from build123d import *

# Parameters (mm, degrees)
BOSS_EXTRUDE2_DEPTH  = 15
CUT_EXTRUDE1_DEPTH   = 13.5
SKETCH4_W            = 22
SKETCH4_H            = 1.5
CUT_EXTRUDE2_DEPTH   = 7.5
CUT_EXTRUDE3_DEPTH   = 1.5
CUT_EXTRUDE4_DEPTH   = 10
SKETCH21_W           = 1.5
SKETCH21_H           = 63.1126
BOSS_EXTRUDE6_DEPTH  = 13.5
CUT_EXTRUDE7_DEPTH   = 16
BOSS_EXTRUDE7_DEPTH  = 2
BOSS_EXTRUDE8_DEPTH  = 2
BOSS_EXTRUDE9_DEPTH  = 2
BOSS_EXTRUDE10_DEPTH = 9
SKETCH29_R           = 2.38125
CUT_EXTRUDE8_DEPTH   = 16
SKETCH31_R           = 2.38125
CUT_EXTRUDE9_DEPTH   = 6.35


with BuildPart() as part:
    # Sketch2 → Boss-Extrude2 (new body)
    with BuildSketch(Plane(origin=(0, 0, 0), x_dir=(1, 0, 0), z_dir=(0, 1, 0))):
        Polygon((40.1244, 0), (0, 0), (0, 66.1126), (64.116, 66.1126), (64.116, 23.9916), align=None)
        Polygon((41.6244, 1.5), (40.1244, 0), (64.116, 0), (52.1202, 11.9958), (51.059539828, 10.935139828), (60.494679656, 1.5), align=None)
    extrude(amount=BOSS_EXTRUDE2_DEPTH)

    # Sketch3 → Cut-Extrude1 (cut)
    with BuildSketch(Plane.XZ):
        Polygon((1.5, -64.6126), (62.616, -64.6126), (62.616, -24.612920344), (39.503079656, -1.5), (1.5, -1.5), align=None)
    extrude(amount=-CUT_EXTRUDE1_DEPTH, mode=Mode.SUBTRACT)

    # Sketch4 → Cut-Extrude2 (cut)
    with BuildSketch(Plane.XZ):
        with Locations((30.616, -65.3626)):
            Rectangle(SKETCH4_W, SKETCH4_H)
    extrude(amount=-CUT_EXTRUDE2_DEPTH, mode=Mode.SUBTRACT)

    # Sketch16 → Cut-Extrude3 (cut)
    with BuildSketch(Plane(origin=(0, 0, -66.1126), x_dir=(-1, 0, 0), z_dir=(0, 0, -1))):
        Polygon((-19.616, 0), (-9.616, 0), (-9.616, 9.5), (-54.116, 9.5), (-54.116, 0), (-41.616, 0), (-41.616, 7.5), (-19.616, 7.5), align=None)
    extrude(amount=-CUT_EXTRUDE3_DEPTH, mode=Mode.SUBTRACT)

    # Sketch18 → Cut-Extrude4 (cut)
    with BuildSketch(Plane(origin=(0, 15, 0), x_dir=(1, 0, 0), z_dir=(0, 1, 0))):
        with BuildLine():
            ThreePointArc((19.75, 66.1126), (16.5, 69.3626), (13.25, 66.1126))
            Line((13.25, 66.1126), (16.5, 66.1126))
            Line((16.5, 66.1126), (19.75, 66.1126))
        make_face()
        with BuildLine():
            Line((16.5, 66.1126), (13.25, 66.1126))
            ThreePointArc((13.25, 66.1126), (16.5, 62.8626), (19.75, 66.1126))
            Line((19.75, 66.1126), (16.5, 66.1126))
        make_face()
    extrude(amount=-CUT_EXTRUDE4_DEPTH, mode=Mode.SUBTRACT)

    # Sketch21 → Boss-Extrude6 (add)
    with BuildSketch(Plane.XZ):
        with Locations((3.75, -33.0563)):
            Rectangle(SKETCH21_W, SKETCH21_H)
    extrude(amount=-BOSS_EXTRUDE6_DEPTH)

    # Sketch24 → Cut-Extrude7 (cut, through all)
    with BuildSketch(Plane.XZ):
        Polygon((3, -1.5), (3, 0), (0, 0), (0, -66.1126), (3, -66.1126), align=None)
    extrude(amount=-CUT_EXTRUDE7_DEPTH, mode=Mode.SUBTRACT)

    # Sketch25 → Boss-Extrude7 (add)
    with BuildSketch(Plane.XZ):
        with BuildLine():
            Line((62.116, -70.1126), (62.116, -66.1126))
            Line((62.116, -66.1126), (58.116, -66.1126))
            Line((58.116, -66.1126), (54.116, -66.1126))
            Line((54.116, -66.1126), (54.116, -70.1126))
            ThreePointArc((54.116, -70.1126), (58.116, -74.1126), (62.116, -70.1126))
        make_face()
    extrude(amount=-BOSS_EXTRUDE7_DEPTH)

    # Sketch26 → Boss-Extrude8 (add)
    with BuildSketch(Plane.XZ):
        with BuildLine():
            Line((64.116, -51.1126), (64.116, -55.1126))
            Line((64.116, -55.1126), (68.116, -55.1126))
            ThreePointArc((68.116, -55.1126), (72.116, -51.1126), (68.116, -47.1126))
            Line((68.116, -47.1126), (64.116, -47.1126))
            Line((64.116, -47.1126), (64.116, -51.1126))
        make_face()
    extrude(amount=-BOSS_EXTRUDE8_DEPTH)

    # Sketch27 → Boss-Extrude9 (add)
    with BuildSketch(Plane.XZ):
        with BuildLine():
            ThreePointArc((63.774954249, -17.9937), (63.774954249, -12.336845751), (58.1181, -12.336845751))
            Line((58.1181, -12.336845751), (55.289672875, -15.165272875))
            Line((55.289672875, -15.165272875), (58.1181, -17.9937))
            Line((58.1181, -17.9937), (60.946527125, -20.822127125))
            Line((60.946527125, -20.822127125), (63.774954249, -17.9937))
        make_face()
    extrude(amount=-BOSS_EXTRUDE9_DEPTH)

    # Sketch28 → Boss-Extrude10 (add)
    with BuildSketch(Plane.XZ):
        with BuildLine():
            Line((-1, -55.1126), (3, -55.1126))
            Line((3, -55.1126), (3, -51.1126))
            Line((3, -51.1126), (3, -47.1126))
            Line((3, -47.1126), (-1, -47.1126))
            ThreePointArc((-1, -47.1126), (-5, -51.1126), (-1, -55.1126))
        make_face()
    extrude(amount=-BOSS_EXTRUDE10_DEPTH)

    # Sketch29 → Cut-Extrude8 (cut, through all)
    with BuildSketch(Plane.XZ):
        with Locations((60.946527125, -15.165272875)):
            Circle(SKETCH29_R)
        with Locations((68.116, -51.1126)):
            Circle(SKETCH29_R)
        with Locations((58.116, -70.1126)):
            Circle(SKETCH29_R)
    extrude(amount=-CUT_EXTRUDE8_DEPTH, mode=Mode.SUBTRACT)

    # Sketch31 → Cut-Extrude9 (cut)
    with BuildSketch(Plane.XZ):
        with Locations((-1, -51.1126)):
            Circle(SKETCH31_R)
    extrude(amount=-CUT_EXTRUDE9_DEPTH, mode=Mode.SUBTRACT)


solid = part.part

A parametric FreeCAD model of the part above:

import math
import FreeCAD as App
import Part
import Sketcher
Q = App.Units.Quantity

doc = App.newDocument("Part")
params = doc.addObject("Spreadsheet::Sheet", "Params")
for row, (alias, value) in enumerate([
    ("pad1_length", "15 mm"),
    ("pocket1_length", "13.5 mm"),
    ("sketch3_width", "22 mm"),
    ("sketch3_height", "1.5 mm"),
    ("pocket2_length", "7.5 mm"),
    ("sketch4_width", "10 mm"),
    ("sketch4_width2", "22 mm"),
    ("sketch4_width3", "44.5 mm"),
    ("sketch4_height", "9.5 mm"),
    ("sketch4_height2", "7.5 mm"),
    ("pocket3_length", "1.5 mm"),
    ("sketch5_diameter", "6.5 mm"),
    ("pocket4_length", "10 mm"),
    ("sketch6_width", "1.5 mm"),
    ("pad2_length", "13.5 mm"),
    ("sketch7_width", "3 mm"),
    ("sketch8_radius", "4 mm"),
    ("sketch8_height", "4 mm"),
    ("pad3_length", "2 mm"),
    ("sketch9_radius", "4 mm"),
    ("sketch9_width", "4 mm"),
    ("pad4_length", "2 mm"),
    ("sketch10_radius", "4 mm"),
    ("pad5_length", "2 mm"),
    ("sketch11_radius", "4 mm"),
    ("sketch11_width", "4 mm"),
    ("pad6_length", "9 mm"),
    ("pocket7_length", "6.35 mm"),
], start=1):
    params.set(f"A{row}", alias)
    params.set(f"B{row}", "=" + value)
    params.setAlias(f"B{row}", alias)

body = doc.addObject("PartDesign::Body", "Body")

sketch1 = doc.addObject("Sketcher::SketchObject", "Sketch")
body.addObject(sketch1)
sketch1.AttachmentSupport = (doc.XZ_Plane, [""])
sketch1.MapMode = "FlatFace"
sketch1.addGeometry([
    Part.LineSegment(App.Vector(0, 0, 0), App.Vector(64.116, 0, 0)),
    Part.LineSegment(App.Vector(64.116, 0, 0), App.Vector(52.1202, -11.9958, 0)),
    Part.LineSegment(App.Vector(52.1202, -11.9958, 0), App.Vector(64.116, -23.9916, 0)),
    Part.LineSegment(App.Vector(64.116, -23.9916, 0), App.Vector(64.116, -66.1126, 0)),
    Part.LineSegment(App.Vector(64.116, -66.1126, 0), App.Vector(0, -66.1126, 0)),
    Part.LineSegment(App.Vector(0, -66.1126, 0), App.Vector(0, 0, 0)),
    Part.LineSegment(App.Vector(41.6244, -1.5, 0), App.Vector(51.05954, -10.93514, 0)),
    Part.LineSegment(App.Vector(51.05954, -10.93514, 0), App.Vector(60.49468, -1.5, 0)),
    Part.LineSegment(App.Vector(60.49468, -1.5, 0), App.Vector(41.6244, -1.5, 0)),
], False)
sketch1.addConstraint([
    Sketcher.Constraint("Coincident", 0, 2, 1, 1),
    Sketcher.Constraint("Coincident", 1, 2, 2, 1),
    Sketcher.Constraint("Coincident", 2, 2, 3, 1),
    Sketcher.Constraint("Coincident", 3, 2, 4, 1),
    Sketcher.Constraint("Coincident", 4, 2, 5, 1),
    Sketcher.Constraint("Coincident", 5, 2, 0, 1),
    Sketcher.Constraint("Coincident", 6, 2, 7, 1),
    Sketcher.Constraint("Coincident", 7, 2, 8, 1),
    Sketcher.Constraint("Coincident", 8, 2, 6, 1),
    Sketcher.Constraint("Horizontal", 0),
    Sketcher.Constraint("Vertical", 3),
    Sketcher.Constraint("Horizontal", 4),
    Sketcher.Constraint("Vertical", 5),
    Sketcher.Constraint("Horizontal", 8),
    Sketcher.Constraint("Coincident", 5, 2, -1, 1),
    Sketcher.Constraint("Perpendicular", 1, 2),
    Sketcher.Constraint("Parallel", 2, 6),
    Sketcher.Constraint("Perpendicular", 6, 7),
    Sketcher.Constraint("Vertical", 0, 2, 2, 2),
    Sketcher.Constraint("Equal", 1, 2),
    Sketcher.Constraint("DistanceY", 7, 2, -1, 1, Q("1.5 mm")),
    Sketcher.Constraint("DistanceX", 0, 1, 0, 2, Q("64.116 mm")),
    Sketcher.Constraint("DistanceY", 3, 2, 3, 1, Q("42.121 mm")),
    Sketcher.Constraint("DistanceY", 5, 1, 5, 2, Q("66.1126 mm")),
    Sketcher.Constraint("DistanceX", 8, 2, 8, 1, Q("18.87028 mm")),
    Sketcher.Constraint("DistanceX", -1, 1, 8, 2, Q("41.6244 mm")),
])
pad1 = doc.addObject("PartDesign::Pad", "Pad")
body.addObject(pad1)
pad1.Profile = sketch1
pad1.setExpression("Length", "Params.pad1_length")
pad1.Reversed = True

sketch2 = doc.addObject("Sketcher::SketchObject", "Sketch001")
body.addObject(sketch2)
sketch2.AttachmentSupport = (doc.XZ_Plane, [""])
sketch2.MapMode = "FlatFace"
sketch2.addGeometry([
    Part.LineSegment(App.Vector(1.5, -64.6126, 0), App.Vector(62.616, -64.6126, 0)),
    Part.LineSegment(App.Vector(62.616, -64.6126, 0), App.Vector(62.616, -24.61292, 0)),
    Part.LineSegment(App.Vector(62.616, -24.61292, 0), App.Vector(39.50308, -1.5, 0)),
    Part.LineSegment(App.Vector(39.50308, -1.5, 0), App.Vector(1.5, -1.5, 0)),
    Part.LineSegment(App.Vector(1.5, -1.5, 0), App.Vector(1.5, -64.6126, 0)),
], False)
sketch2.addConstraint([
    Sketcher.Constraint("Coincident", 0, 2, 1, 1),
    Sketcher.Constraint("Coincident", 1, 2, 2, 1),
    Sketcher.Constraint("Coincident", 2, 2, 3, 1),
    Sketcher.Constraint("Coincident", 3, 2, 4, 1),
    Sketcher.Constraint("Coincident", 4, 2, 0, 1),
    Sketcher.Constraint("Horizontal", 0),
    Sketcher.Constraint("Vertical", 1),
    Sketcher.Constraint("Horizontal", 3),
    Sketcher.Constraint("Vertical", 4),
    Sketcher.Constraint("Angle", 2, Q("135 deg")),
    Sketcher.Constraint("DistanceY", 2, 2, -1, 1, Q("1.5 mm")),
    Sketcher.Constraint("DistanceX", -1, 1, 3, 2, Q("1.5 mm")),
    Sketcher.Constraint("DistanceX", 0, 1, 0, 2, Q("61.116 mm")),
    Sketcher.Constraint("DistanceY", 4, 2, 4, 1, Q("63.1126 mm")),
    Sketcher.Constraint("DistanceX", 3, 2, 3, 1, Q("38.00308 mm")),
])
pocket1 = doc.addObject("PartDesign::Pocket", "Pocket")
body.addObject(pocket1)
pocket1.Profile = sketch2
pocket1.setExpression("Length", "Params.pocket1_length")

sketch3 = doc.addObject("Sketcher::SketchObject", "Sketch002")
body.addObject(sketch3)
sketch3.AttachmentSupport = (doc.XZ_Plane, [""])
sketch3.MapMode = "FlatFace"
sketch3.addGeometry([
    Part.LineSegment(App.Vector(19.616, -64.6126, 0), App.Vector(19.616, -66.1126, 0)),
    Part.LineSegment(App.Vector(19.616, -66.1126, 0), App.Vector(41.616, -66.1126, 0)),
    Part.LineSegment(App.Vector(41.616, -66.1126, 0), App.Vector(41.616, -64.6126, 0)),
    Part.LineSegment(App.Vector(41.616, -64.6126, 0), App.Vector(19.616, -64.6126, 0)),
], False)
sketch3.addConstraint([
    Sketcher.Constraint("Coincident", 0, 2, 1, 1),
    Sketcher.Constraint("Coincident", 1, 2, 2, 1),
    Sketcher.Constraint("Coincident", 2, 2, 3, 1),
    Sketcher.Constraint("Coincident", 3, 2, 0, 1),
    Sketcher.Constraint("Vertical", 0),
    Sketcher.Constraint("Horizontal", 1),
    Sketcher.Constraint("Vertical", 2),
    Sketcher.Constraint("Horizontal", 3),
    Sketcher.Constraint("DistanceX", 1, 1, 1, 2, Q("22 mm")),
    Sketcher.Constraint("DistanceY", 0, 2, 0, 1, Q("1.5 mm")),
    Sketcher.Constraint("DistanceX", -1, 1, 0, 2, Q("19.616 mm")),
    Sketcher.Constraint("DistanceY", 0, 2, -1, 1, Q("66.1126 mm")),
])
sketch3.setExpression("Constraints[8]", "Params.sketch3_width")
sketch3.setExpression("Constraints[9]", "Params.sketch3_height")
pocket2 = doc.addObject("PartDesign::Pocket", "Pocket001")
body.addObject(pocket2)
pocket2.Profile = sketch3
pocket2.setExpression("Length", "Params.pocket2_length")

sketch4 = doc.addObject("Sketcher::SketchObject", "Sketch003")
body.addObject(sketch4)
sketch4.AttachmentSupport = (doc.XY_Plane, [""])
sketch4.MapMode = "FlatFace"
sketch4.AttachmentOffset = App.Placement(App.Vector(0, 0, -66.1126), App.Rotation())
sketch4.addGeometry([
    Part.LineSegment(App.Vector(19.616, 0, 0), App.Vector(9.616, 0, 0)),
    Part.LineSegment(App.Vector(9.616, 0, 0), App.Vector(9.616, 9.5, 0)),
    Part.LineSegment(App.Vector(9.616, 9.5, 0), App.Vector(54.116, 9.5, 0)),
    Part.LineSegment(App.Vector(54.116, 9.5, 0), App.Vector(54.116, 0, 0)),
    Part.LineSegment(App.Vector(54.116, 0, 0), App.Vector(41.616, 0, 0)),
    Part.LineSegment(App.Vector(41.616, 0, 0), App.Vector(41.616, 7.5, 0)),
    Part.LineSegment(App.Vector(41.616, 7.5, 0), App.Vector(19.616, 7.5, 0)),
    Part.LineSegment(App.Vector(19.616, 7.5, 0), App.Vector(19.616, 0, 0)),
], False)
sketch4.addConstraint([
    Sketcher.Constraint("Coincident", 0, 2, 1, 1),
    Sketcher.Constraint("Coincident", 1, 2, 2, 1),
    Sketcher.Constraint("Coincident", 2, 2, 3, 1),
    Sketcher.Constraint("Coincident", 3, 2, 4, 1),
    Sketcher.Constraint("Coincident", 4, 2, 5, 1),
    Sketcher.Constraint("Coincident", 5, 2, 6, 1),
    Sketcher.Constraint("Coincident", 6, 2, 7, 1),
    Sketcher.Constraint("Coincident", 7, 2, 0, 1),
    Sketcher.Constraint("Horizontal", 0),
    Sketcher.Constraint("Vertical", 1),
    Sketcher.Constraint("Horizontal", 2),
    Sketcher.Constraint("Vertical", 3),
    Sketcher.Constraint("Horizontal", 4),
    Sketcher.Constraint("Vertical", 5),
    Sketcher.Constraint("Horizontal", 6),
    Sketcher.Constraint("Vertical", 7),
    Sketcher.Constraint("PointOnObject", 0, 2, -1),
    Sketcher.Constraint("PointOnObject", 3, 2, -1),
    Sketcher.Constraint("DistanceX", 0, 2, 0, 1, Q("10 mm")),
    Sketcher.Constraint("DistanceX", 6, 2, 6, 1, Q("22 mm")),
    Sketcher.Constraint("DistanceX", 2, 1, 2, 2, Q("44.5 mm")),
    Sketcher.Constraint("DistanceY", 1, 1, 1, 2, Q("9.5 mm")),
    Sketcher.Constraint("DistanceY", 5, 1, 5, 2, Q("7.5 mm")),
    Sketcher.Constraint("DistanceX", -1, 1, 0, 2, Q("9.616 mm")),
])
sketch4.setExpression("Constraints[18]", "Params.sketch4_width")
sketch4.setExpression("Constraints[19]", "Params.sketch4_width2")
sketch4.setExpression("Constraints[20]", "Params.sketch4_width3")
sketch4.setExpression("Constraints[21]", "Params.sketch4_height")
sketch4.setExpression("Constraints[22]", "Params.sketch4_height2")
pocket3 = doc.addObject("PartDesign::Pocket", "Pocket002")
body.addObject(pocket3)
pocket3.Profile = sketch4
pocket3.setExpression("Length", "Params.pocket3_length")
pocket3.Reversed = True

sketch5 = doc.addObject("Sketcher::SketchObject", "Sketch004")
body.addObject(sketch5)
sketch5.AttachmentSupport = (doc.XZ_Plane, [""])
sketch5.MapMode = "FlatFace"
sketch5.AttachmentOffset = App.Placement(App.Vector(0, 0, -15), App.Rotation())
sketch5.addGeometry(Part.Circle(App.Vector(16.5, -66.1126, 0), App.Vector(0, 0, 1), 3.25), False)
sketch5.addConstraint([
    Sketcher.Constraint("Diameter", 0, Q("6.5 mm")),
    Sketcher.Constraint("DistanceX", -1, 1, 0, 3, Q("16.5 mm")),
    Sketcher.Constraint("DistanceY", 0, 3, -1, 1, Q("66.1126 mm")),
])
sketch5.setExpression("Constraints[0]", "Params.sketch5_diameter")
pocket4 = doc.addObject("PartDesign::Pocket", "Pocket003")
body.addObject(pocket4)
pocket4.Profile = sketch5
pocket4.setExpression("Length", "Params.pocket4_length")
pocket4.Reversed = True

sketch6 = doc.addObject("Sketcher::SketchObject", "Sketch005")
body.addObject(sketch6)
sketch6.AttachmentSupport = (doc.XZ_Plane, [""])
sketch6.MapMode = "FlatFace"
sketch6.addGeometry([
    Part.LineSegment(App.Vector(3, -1.5, 0), App.Vector(3, -64.6126, 0)),
    Part.LineSegment(App.Vector(3, -64.6126, 0), App.Vector(4.5, -64.6126, 0)),
    Part.LineSegment(App.Vector(4.5, -64.6126, 0), App.Vector(4.5, -1.5, 0)),
    Part.LineSegment(App.Vector(4.5, -1.5, 0), App.Vector(3, -1.5, 0)),
], False)
sketch6.addConstraint([
    Sketcher.Constraint("Coincident", 0, 2, 1, 1),
    Sketcher.Constraint("Coincident", 1, 2, 2, 1),
    Sketcher.Constraint("Coincident", 2, 2, 3, 1),
    Sketcher.Constraint("Coincident", 3, 2, 0, 1),
    Sketcher.Constraint("Vertical", 0),
    Sketcher.Constraint("Horizontal", 1),
    Sketcher.Constraint("Vertical", 2),
    Sketcher.Constraint("Horizontal", 3),
    Sketcher.Constraint("DistanceX", 1, 1, 1, 2, Q("1.5 mm")),
    Sketcher.Constraint("DistanceX", -1, 1, 0, 2, Q("3 mm")),
    Sketcher.Constraint("DistanceY", 2, 2, -1, 1, Q("1.5 mm")),
    Sketcher.Constraint("DistanceY", 0, 2, 0, 1, Q("63.1126 mm")),
])
sketch6.setExpression("Constraints[8]", "Params.sketch6_width")
pad2 = doc.addObject("PartDesign::Pad", "Pad001")
body.addObject(pad2)
pad2.Profile = sketch6
pad2.setExpression("Length", "Params.pad2_length")
pad2.Reversed = True

sketch7 = doc.addObject("Sketcher::SketchObject", "Sketch006")
body.addObject(sketch7)
sketch7.AttachmentSupport = (doc.XZ_Plane, [""])
sketch7.MapMode = "FlatFace"
sketch7.addGeometry([
    Part.LineSegment(App.Vector(3, 0, 0), App.Vector(0, 0, 0)),
    Part.LineSegment(App.Vector(0, 0, 0), App.Vector(0, -66.1126, 0)),
    Part.LineSegment(App.Vector(0, -66.1126, 0), App.Vector(3, -66.1126, 0)),
    Part.LineSegment(App.Vector(3, -66.1126, 0), App.Vector(3, 0, 0)),
], False)
sketch7.addConstraint([
    Sketcher.Constraint("Coincident", 0, 2, 1, 1),
    Sketcher.Constraint("Coincident", 1, 2, 2, 1),
    Sketcher.Constraint("Coincident", 2, 2, 3, 1),
    Sketcher.Constraint("Coincident", 3, 2, 0, 1),
    Sketcher.Constraint("Horizontal", 0),
    Sketcher.Constraint("Vertical", 1),
    Sketcher.Constraint("Horizontal", 2),
    Sketcher.Constraint("Vertical", 3),
    Sketcher.Constraint("Coincident", 0, 2, -1, 1),
    Sketcher.Constraint("DistanceX", 0, 2, 0, 1, Q("3 mm")),
    Sketcher.Constraint("DistanceY", 1, 2, 1, 1, Q("66.1126 mm")),
])
sketch7.setExpression("Constraints[9]", "Params.sketch7_width")
pocket5 = doc.addObject("PartDesign::Pocket", "Pocket004")
body.addObject(pocket5)
pocket5.Profile = sketch7
pocket5.Type = "ThroughAll"

sketch8 = doc.addObject("Sketcher::SketchObject", "Sketch007")
body.addObject(sketch8)
sketch8.AttachmentSupport = (doc.XZ_Plane, [""])
sketch8.MapMode = "FlatFace"
sketch8.addGeometry([
    Part.LineSegment(App.Vector(62.116, -70.1126, 0), App.Vector(62.116, -66.1126, 0)),
    Part.LineSegment(App.Vector(62.116, -66.1126, 0), App.Vector(54.116, -66.1126, 0)),
    Part.LineSegment(App.Vector(54.116, -66.1126, 0), App.Vector(54.116, -70.1126, 0)),
    Part.ArcOfCircle(Part.Circle(App.Vector(58.116, -70.1126, 0), App.Vector(0, 0, 1), 4), math.radians(180), math.radians(360)),
], False)
sketch8.addConstraint([
    Sketcher.Constraint("Coincident", 0, 2, 1, 1),
    Sketcher.Constraint("Coincident", 1, 2, 2, 1),
    Sketcher.Constraint("Tangent", 2, 2, 3, 1),
    Sketcher.Constraint("Tangent", 3, 2, 0, 1),
    Sketcher.Constraint("Vertical", 0),
    Sketcher.Constraint("Horizontal", 1),
    Sketcher.Constraint("Vertical", 2),
    Sketcher.Constraint("Radius", 3, Q("4 mm")),
    Sketcher.Constraint("DistanceY", 0, 1, 0, 2, Q("4 mm")),
    Sketcher.Constraint("DistanceX", -1, 1, 3, 3, Q("58.116 mm")),
    Sketcher.Constraint("DistanceY", 3, 3, -1, 1, Q("70.1126 mm")),
])
sketch8.setExpression("Constraints[7]", "Params.sketch8_radius")
sketch8.setExpression("Constraints[8]", "Params.sketch8_height")
pad3 = doc.addObject("PartDesign::Pad", "Pad002")
body.addObject(pad3)
pad3.Profile = sketch8
pad3.setExpression("Length", "Params.pad3_length")
pad3.Reversed = True

sketch9 = doc.addObject("Sketcher::SketchObject", "Sketch008")
body.addObject(sketch9)
sketch9.AttachmentSupport = (doc.XZ_Plane, [""])
sketch9.MapMode = "FlatFace"
sketch9.addGeometry([
    Part.LineSegment(App.Vector(64.116, -55.1126, 0), App.Vector(68.116, -55.1126, 0)),
    Part.ArcOfCircle(Part.Circle(App.Vector(68.116, -51.1126, 0), App.Vector(0, 0, 1), 4), math.radians(-90), math.radians(90)),
    Part.LineSegment(App.Vector(68.116, -47.1126, 0), App.Vector(64.116, -47.1126, 0)),
    Part.LineSegment(App.Vector(64.116, -47.1126, 0), App.Vector(64.116, -55.1126, 0)),
], False)
sketch9.addConstraint([
    Sketcher.Constraint("Tangent", 0, 2, 1, 1),
    Sketcher.Constraint("Tangent", 1, 2, 2, 1),
    Sketcher.Constraint("Coincident", 2, 2, 3, 1),
    Sketcher.Constraint("Coincident", 3, 2, 0, 1),
    Sketcher.Constraint("Horizontal", 0),
    Sketcher.Constraint("Horizontal", 2),
    Sketcher.Constraint("Vertical", 3),
    Sketcher.Constraint("Radius", 1, Q("4 mm")),
    Sketcher.Constraint("DistanceX", 0, 1, 0, 2, Q("4 mm")),
    Sketcher.Constraint("DistanceX", -1, 1, 1, 3, Q("68.116 mm")),
    Sketcher.Constraint("DistanceY", 1, 3, -1, 1, Q("51.1126 mm")),
])
sketch9.setExpression("Constraints[7]", "Params.sketch9_radius")
sketch9.setExpression("Constraints[8]", "Params.sketch9_width")
pad4 = doc.addObject("PartDesign::Pad", "Pad003")
body.addObject(pad4)
pad4.Profile = sketch9
pad4.setExpression("Length", "Params.pad4_length")
pad4.Reversed = True

sketch10 = doc.addObject("Sketcher::SketchObject", "Sketch009")
body.addObject(sketch10)
sketch10.AttachmentSupport = (doc.XZ_Plane, [""])
sketch10.MapMode = "FlatFace"
sketch10.addGeometry([
    Part.ArcOfCircle(Part.Circle(App.Vector(60.946527, -15.165273, 0), App.Vector(0, 0, 1), 4), math.radians(-45), math.radians(135)),
    Part.LineSegment(App.Vector(58.1181, -12.336846, 0), App.Vector(55.289673, -15.165273, 0)),
    Part.LineSegment(App.Vector(55.289673, -15.165273, 0), App.Vector(60.946527, -20.822127, 0)),
    Part.LineSegment(App.Vector(60.946527, -20.822127, 0), App.Vector(63.774954, -17.9937, 0)),
], False)
sketch10.addConstraint([
    Sketcher.Constraint("Tangent", 0, 2, 1, 1),
    Sketcher.Constraint("Coincident", 1, 2, 2, 1),
    Sketcher.Constraint("Coincident", 2, 2, 3, 1),
    Sketcher.Constraint("Tangent", 3, 2, 0, 1),
    Sketcher.Constraint("Perpendicular", 1, 2),
    Sketcher.Constraint("Perpendicular", 2, 3),
    Sketcher.Constraint("Horizontal", 0, 3, 1, 2),
    Sketcher.Constraint("Vertical", 0, 3, 2, 2),
    Sketcher.Constraint("Radius", 0, Q("4 mm")),
    Sketcher.Constraint("DistanceX", -1, 1, 0, 2, Q("58.1181 mm")),
    Sketcher.Constraint("DistanceY", 3, 2, -1, 1, Q("17.9937 mm")),
])
sketch10.setExpression("Constraints[8]", "Params.sketch10_radius")
pad5 = doc.addObject("PartDesign::Pad", "Pad004")
body.addObject(pad5)
pad5.Profile = sketch10
pad5.setExpression("Length", "Params.pad5_length")
pad5.Reversed = True

sketch11 = doc.addObject("Sketcher::SketchObject", "Sketch010")
body.addObject(sketch11)
sketch11.AttachmentSupport = (doc.XZ_Plane, [""])
sketch11.MapMode = "FlatFace"
sketch11.addGeometry([
    Part.LineSegment(App.Vector(-1, -55.1126, 0), App.Vector(3, -55.1126, 0)),
    Part.LineSegment(App.Vector(3, -55.1126, 0), App.Vector(3, -47.1126, 0)),
    Part.LineSegment(App.Vector(3, -47.1126, 0), App.Vector(-1, -47.1126, 0)),
    Part.ArcOfCircle(Part.Circle(App.Vector(-1, -51.1126, 0), App.Vector(0, 0, 1), 4), math.radians(90), math.radians(270)),
], False)
sketch11.addConstraint([
    Sketcher.Constraint("Coincident", 0, 2, 1, 1),
    Sketcher.Constraint("Coincident", 1, 2, 2, 1),
    Sketcher.Constraint("Tangent", 2, 2, 3, 1),
    Sketcher.Constraint("Tangent", 3, 2, 0, 1),
    Sketcher.Constraint("Horizontal", 0),
    Sketcher.Constraint("Vertical", 1),
    Sketcher.Constraint("Horizontal", 2),
    Sketcher.Constraint("Radius", 3, Q("4 mm")),
    Sketcher.Constraint("DistanceX", 0, 1, 0, 2, Q("4 mm")),
    Sketcher.Constraint("DistanceX", 3, 3, -1, 1, Q("1 mm")),
    Sketcher.Constraint("DistanceY", 3, 3, -1, 1, Q("51.1126 mm")),
])
sketch11.setExpression("Constraints[7]", "Params.sketch11_radius")
sketch11.setExpression("Constraints[8]", "Params.sketch11_width")
pad6 = doc.addObject("PartDesign::Pad", "Pad005")
body.addObject(pad6)
pad6.Profile = sketch11
pad6.setExpression("Length", "Params.pad6_length")
pad6.Reversed = True

sketch12 = doc.addObject("Sketcher::SketchObject", "Sketch011")
body.addObject(sketch12)
sketch12.AttachmentSupport = (doc.XZ_Plane, [""])
sketch12.MapMode = "FlatFace"
sketch12.addGeometry([
    Part.Circle(App.Vector(60.946527, -15.165273, 0), App.Vector(0, 0, 1), 2.38125),
    Part.Circle(App.Vector(68.116, -51.1126, 0), App.Vector(0, 0, 1), 2.38125),
    Part.Circle(App.Vector(58.116, -70.1126, 0), App.Vector(0, 0, 1), 2.38125),
], False)
sketch12.addConstraint([
    Sketcher.Constraint("Equal", 0, 1),
    Sketcher.Constraint("Equal", 1, 2),
    Sketcher.Constraint("DistanceX", 2, 3, 1, 3, Q("10 mm")),
    Sketcher.Constraint("DistanceY", 2, 3, 1, 3, Q("19 mm")),
    Sketcher.Constraint("Diameter", 0, Q("4.7625 mm")),
    Sketcher.Constraint("DistanceX", -1, 1, 1, 3, Q("68.116 mm")),
    Sketcher.Constraint("DistanceY", 1, 3, -1, 1, Q("51.1126 mm")),
    Sketcher.Constraint("DistanceX", -1, 1, 0, 3, Q("60.946527 mm")),
    Sketcher.Constraint("DistanceY", 0, 3, -1, 1, Q("15.165273 mm")),
])
pocket6 = doc.addObject("PartDesign::Pocket", "Pocket005")
body.addObject(pocket6)
pocket6.Profile = sketch12
pocket6.Type = "ThroughAll"

sketch13 = doc.addObject("Sketcher::SketchObject", "Sketch012")
body.addObject(sketch13)
sketch13.AttachmentSupport = (doc.XZ_Plane, [""])
sketch13.MapMode = "FlatFace"
sketch13.addGeometry(Part.Circle(App.Vector(-1, -51.1126, 0), App.Vector(0, 0, 1), 2.38125), False)
sketch13.addConstraint([
    Sketcher.Constraint("DistanceX", 0, 3, -1, 1, Q("1 mm")),
    Sketcher.Constraint("Diameter", 0, Q("4.7625 mm")),
    Sketcher.Constraint("DistanceY", 0, 3, -1, 1, Q("51.1126 mm")),
])
pocket7 = doc.addObject("PartDesign::Pocket", "Pocket006")
body.addObject(pocket7)
pocket7.Profile = sketch13
pocket7.setExpression("Length", "Params.pocket7_length")

doc.recompute()
